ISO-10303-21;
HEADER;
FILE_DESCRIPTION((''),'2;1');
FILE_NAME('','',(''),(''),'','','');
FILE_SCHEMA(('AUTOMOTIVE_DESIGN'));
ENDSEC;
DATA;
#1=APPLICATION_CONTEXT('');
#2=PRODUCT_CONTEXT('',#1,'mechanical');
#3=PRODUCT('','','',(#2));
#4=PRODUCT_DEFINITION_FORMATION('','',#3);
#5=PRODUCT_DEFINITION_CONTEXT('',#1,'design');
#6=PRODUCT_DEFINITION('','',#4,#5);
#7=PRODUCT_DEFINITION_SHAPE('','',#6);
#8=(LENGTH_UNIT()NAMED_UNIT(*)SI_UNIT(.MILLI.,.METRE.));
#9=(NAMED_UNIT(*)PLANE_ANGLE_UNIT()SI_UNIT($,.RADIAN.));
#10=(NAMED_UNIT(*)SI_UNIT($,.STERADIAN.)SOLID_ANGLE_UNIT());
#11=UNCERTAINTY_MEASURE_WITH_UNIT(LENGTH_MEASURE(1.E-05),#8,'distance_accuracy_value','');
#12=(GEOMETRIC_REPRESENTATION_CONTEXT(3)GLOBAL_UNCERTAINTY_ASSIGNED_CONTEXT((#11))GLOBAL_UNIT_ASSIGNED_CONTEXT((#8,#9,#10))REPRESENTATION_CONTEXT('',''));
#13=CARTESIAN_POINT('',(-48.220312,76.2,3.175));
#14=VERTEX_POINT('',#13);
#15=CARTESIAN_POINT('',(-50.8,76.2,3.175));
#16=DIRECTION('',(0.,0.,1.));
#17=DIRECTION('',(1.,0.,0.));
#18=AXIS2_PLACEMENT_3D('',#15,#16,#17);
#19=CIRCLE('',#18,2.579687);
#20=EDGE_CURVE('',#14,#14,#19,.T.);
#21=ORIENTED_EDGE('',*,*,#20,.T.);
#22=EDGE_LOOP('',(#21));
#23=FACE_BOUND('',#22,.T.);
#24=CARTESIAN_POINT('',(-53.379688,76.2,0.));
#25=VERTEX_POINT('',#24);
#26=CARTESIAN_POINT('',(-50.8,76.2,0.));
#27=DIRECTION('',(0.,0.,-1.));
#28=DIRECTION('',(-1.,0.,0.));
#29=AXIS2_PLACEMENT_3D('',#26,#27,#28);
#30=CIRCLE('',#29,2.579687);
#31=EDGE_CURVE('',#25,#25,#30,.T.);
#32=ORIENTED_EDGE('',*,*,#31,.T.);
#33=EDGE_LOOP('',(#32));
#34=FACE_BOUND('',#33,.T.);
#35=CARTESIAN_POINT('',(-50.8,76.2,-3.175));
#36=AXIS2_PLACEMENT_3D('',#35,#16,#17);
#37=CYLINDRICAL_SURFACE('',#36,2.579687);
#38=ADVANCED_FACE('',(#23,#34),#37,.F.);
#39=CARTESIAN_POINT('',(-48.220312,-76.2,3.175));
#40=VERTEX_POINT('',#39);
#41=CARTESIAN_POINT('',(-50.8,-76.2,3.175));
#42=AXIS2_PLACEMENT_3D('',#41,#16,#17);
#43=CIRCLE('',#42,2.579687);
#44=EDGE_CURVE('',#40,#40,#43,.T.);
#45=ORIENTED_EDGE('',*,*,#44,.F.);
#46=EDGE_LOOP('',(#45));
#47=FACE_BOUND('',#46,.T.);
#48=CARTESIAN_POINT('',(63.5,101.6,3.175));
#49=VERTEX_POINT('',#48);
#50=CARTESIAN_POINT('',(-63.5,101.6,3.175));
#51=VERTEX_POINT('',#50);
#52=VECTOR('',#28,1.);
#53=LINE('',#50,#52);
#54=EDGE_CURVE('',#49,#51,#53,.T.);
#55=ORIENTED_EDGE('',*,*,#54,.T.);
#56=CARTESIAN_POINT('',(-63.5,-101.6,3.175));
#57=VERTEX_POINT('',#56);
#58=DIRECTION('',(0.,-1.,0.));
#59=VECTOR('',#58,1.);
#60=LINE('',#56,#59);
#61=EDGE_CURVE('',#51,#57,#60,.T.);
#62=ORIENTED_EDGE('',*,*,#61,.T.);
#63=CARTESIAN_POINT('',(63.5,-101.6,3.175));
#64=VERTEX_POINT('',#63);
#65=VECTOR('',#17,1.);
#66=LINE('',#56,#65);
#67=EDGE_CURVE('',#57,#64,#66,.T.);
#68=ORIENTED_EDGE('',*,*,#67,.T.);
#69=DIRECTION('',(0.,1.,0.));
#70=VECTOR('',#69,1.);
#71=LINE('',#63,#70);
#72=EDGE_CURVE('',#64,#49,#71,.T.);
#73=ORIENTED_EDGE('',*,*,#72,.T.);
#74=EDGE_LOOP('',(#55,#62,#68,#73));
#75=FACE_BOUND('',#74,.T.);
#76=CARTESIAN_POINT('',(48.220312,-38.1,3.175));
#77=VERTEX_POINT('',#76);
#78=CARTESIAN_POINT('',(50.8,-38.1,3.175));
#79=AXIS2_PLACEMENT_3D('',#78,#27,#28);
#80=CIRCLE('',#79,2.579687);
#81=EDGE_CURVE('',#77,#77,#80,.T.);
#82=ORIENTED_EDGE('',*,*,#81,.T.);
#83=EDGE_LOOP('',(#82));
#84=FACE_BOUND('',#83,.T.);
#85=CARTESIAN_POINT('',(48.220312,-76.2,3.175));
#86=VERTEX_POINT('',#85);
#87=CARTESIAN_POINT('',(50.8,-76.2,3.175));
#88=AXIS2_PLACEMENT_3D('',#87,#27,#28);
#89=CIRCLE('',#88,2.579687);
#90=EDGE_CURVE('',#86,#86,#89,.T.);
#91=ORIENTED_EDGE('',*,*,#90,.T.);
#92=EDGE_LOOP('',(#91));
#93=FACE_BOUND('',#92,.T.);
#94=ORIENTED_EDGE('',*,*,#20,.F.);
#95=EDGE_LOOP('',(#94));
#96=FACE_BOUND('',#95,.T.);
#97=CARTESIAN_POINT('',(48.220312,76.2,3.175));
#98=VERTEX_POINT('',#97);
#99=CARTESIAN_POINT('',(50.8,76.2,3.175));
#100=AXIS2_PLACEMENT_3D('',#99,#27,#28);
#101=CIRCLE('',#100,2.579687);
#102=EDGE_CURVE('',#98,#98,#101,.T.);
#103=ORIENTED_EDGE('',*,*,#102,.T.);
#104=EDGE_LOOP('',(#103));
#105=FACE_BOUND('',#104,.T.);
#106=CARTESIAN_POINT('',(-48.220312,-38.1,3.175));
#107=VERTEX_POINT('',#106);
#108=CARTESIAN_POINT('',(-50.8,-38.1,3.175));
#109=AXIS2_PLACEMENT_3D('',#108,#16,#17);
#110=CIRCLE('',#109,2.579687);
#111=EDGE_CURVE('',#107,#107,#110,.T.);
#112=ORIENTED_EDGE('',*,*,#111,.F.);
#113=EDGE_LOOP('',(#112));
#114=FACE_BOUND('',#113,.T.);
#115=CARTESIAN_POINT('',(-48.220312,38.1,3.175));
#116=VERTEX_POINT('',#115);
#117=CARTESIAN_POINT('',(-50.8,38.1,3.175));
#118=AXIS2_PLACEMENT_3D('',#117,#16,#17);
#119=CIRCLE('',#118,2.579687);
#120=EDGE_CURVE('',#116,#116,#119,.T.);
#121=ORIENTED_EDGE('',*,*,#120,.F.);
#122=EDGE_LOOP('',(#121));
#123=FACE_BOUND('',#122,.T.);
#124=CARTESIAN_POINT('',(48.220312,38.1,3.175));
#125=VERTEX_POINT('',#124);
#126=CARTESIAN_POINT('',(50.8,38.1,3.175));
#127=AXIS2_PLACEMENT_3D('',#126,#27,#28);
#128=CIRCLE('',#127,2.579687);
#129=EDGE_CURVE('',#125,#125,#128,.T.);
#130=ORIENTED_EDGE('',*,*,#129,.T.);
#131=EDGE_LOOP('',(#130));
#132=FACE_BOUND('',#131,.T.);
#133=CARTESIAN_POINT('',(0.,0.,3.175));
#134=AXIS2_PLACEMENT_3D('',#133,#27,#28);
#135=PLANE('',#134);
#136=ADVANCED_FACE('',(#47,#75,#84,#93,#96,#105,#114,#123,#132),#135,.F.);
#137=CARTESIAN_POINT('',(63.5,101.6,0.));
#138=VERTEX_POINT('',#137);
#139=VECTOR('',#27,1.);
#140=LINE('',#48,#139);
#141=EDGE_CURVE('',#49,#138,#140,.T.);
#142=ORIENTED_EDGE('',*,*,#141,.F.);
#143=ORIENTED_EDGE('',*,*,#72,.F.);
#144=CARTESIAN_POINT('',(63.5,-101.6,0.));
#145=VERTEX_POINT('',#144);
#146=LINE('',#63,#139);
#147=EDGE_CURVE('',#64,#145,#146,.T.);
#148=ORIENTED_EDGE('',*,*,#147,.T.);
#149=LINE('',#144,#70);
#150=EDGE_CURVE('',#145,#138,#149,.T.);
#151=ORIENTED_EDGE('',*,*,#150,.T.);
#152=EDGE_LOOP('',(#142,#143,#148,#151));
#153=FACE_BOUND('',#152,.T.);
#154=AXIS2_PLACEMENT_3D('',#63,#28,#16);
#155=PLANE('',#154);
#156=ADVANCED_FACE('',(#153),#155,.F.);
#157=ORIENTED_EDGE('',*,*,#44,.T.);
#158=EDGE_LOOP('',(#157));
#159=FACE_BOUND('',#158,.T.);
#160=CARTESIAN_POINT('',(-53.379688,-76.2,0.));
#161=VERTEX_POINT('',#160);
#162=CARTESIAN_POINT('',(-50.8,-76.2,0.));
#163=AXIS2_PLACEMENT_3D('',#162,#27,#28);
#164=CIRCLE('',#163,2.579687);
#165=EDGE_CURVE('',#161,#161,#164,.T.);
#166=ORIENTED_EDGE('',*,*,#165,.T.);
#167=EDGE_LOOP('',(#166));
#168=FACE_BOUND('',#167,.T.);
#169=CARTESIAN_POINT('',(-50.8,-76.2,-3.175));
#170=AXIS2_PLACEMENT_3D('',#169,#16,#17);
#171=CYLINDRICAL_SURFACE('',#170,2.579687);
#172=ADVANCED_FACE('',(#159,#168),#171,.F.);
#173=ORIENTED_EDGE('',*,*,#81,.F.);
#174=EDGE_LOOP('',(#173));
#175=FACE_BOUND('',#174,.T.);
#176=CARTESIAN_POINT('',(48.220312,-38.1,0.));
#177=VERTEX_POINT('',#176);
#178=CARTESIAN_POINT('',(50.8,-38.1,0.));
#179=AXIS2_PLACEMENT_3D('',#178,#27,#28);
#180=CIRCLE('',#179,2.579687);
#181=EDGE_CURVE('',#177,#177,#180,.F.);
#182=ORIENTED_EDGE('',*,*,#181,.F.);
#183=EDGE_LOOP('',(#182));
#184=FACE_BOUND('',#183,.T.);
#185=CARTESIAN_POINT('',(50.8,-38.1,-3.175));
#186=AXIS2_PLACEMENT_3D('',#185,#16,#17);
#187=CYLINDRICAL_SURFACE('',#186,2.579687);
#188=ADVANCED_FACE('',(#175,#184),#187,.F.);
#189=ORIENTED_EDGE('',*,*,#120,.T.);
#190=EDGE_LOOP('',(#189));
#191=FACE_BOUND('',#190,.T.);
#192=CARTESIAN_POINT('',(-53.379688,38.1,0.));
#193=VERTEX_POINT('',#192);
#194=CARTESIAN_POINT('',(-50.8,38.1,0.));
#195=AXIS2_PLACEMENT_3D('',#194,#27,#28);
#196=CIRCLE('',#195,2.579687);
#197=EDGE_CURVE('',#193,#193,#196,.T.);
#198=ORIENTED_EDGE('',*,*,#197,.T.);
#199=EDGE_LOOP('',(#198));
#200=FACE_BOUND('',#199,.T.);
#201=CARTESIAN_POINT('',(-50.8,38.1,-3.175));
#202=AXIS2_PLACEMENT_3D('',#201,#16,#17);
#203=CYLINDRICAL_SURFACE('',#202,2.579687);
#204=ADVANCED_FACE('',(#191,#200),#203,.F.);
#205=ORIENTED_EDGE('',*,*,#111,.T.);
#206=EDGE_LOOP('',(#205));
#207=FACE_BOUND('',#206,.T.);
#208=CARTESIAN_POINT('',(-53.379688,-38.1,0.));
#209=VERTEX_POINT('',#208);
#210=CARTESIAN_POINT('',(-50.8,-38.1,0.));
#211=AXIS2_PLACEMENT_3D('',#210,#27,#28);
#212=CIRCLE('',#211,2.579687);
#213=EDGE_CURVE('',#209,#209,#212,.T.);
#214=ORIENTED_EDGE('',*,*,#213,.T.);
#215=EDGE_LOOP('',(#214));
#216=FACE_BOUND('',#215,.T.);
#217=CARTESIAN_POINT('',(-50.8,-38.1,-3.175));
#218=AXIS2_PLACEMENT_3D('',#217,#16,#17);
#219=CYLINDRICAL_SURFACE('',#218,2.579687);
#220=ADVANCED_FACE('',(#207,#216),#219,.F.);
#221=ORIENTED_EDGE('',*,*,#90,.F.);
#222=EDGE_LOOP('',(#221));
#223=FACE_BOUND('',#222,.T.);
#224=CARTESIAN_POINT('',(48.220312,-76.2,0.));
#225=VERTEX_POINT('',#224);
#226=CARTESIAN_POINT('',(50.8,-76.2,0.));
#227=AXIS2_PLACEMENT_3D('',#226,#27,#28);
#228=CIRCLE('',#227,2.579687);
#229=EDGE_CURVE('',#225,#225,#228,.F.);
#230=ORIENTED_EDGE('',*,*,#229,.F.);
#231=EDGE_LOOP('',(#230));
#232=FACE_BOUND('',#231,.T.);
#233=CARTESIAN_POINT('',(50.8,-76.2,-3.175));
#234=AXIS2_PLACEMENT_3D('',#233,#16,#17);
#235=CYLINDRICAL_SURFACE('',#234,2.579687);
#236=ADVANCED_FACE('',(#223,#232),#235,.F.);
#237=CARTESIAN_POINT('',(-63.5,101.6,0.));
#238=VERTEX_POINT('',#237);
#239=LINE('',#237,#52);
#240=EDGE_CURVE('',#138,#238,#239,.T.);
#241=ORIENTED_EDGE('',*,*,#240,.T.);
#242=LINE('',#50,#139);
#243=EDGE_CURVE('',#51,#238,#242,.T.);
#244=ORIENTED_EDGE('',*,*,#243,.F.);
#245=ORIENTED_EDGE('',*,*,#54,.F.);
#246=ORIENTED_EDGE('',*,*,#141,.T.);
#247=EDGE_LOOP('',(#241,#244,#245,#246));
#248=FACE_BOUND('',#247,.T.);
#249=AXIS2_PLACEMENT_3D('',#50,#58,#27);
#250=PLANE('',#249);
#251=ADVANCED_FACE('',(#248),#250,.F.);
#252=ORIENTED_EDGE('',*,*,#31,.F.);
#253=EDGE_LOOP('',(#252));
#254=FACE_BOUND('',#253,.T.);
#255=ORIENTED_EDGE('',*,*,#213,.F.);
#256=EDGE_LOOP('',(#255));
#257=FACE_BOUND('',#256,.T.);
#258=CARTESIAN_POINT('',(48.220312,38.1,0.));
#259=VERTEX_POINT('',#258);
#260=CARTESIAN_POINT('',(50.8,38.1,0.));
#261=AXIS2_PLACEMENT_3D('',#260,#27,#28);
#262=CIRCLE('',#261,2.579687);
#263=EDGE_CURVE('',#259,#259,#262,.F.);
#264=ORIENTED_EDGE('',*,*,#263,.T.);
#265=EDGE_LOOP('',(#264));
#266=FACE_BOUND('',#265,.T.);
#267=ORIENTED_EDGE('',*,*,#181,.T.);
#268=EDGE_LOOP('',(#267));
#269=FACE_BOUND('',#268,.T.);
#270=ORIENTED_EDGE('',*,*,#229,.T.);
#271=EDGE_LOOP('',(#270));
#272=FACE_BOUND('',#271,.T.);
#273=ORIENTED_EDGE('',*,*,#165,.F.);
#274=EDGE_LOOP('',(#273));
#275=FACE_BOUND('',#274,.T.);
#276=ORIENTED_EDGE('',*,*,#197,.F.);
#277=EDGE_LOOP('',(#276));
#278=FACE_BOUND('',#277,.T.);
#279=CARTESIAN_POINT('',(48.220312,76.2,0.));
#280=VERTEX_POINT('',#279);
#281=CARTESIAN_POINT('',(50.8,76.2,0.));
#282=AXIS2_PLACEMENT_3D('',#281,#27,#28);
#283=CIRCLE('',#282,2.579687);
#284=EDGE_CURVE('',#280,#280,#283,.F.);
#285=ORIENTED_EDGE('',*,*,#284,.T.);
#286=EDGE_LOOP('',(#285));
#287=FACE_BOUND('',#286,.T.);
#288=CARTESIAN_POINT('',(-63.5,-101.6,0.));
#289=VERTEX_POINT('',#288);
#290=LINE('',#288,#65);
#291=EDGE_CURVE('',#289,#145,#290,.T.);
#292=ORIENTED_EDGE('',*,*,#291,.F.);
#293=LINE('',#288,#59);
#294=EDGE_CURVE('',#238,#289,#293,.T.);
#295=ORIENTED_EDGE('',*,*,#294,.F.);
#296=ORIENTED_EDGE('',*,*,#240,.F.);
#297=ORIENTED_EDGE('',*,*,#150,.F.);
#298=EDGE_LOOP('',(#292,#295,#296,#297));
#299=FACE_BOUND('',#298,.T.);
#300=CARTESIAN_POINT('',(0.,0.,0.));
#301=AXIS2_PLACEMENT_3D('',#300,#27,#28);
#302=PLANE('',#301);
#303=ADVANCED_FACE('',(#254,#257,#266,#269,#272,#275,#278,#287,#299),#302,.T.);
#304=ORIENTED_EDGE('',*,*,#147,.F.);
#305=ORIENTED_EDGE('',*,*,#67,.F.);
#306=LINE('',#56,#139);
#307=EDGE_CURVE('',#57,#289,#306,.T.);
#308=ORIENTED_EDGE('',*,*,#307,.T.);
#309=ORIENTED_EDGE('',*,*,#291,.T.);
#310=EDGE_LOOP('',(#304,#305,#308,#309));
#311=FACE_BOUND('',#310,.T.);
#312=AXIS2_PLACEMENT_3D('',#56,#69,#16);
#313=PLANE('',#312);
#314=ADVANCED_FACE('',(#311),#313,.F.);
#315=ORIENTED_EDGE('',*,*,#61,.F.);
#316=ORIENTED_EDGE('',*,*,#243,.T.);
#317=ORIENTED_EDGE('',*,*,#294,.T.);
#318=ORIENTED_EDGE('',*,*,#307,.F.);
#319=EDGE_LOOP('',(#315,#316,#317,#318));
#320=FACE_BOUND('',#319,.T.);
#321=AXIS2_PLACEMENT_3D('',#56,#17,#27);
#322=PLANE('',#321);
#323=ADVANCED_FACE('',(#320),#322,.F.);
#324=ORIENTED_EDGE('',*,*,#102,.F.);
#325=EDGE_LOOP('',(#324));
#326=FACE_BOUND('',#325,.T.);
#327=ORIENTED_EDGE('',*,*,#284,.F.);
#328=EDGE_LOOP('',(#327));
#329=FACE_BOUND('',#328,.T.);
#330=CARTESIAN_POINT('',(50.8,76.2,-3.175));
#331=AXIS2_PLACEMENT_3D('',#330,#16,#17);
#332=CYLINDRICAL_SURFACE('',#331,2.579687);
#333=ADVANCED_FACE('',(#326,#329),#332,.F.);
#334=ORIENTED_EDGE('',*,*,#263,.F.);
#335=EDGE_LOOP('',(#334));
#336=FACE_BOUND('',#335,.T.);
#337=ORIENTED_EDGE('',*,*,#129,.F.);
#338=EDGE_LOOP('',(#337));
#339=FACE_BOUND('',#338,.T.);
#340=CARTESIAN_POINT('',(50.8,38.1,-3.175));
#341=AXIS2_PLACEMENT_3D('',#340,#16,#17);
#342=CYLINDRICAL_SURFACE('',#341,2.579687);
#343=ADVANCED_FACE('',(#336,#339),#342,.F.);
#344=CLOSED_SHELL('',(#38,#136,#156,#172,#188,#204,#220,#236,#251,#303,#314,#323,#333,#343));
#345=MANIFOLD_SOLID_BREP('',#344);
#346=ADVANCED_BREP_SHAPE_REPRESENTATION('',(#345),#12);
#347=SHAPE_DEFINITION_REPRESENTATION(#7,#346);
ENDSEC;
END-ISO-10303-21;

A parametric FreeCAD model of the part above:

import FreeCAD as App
import Part
import Sketcher
Q = App.Units.Quantity


def add_polygon(sketch, points):
    """Adds a closed chain of lines whose ends are joined by coincident constraints."""
    first, n = sketch.GeometryCount, len(points)
    for a, b in zip(points, points[1:] + points[:1]):
        sketch.addGeometry(Part.LineSegment(App.Vector(*a, 0), App.Vector(*b, 0)), False)
    for i in range(n):
        sketch.addConstraint(Sketcher.Constraint("Coincident", first + i, 2, first + (i + 1) % n, 1))

doc = App.newDocument("Part")
body = doc.addObject("PartDesign::Body", "Body")

# Sketch on XY plane
sketch1 = body.newObject("Sketcher::SketchObject", "Sketch")
sketch1.AttachmentSupport = (doc.getObject("XY_Plane"), [""])
sketch1.MapMode = "FlatFace"
add_polygon(sketch1, [(-63.5, 101.6), (-63.5, -101.6), (63.5, -101.6), (63.5, 101.6)])  # lines 0-3
sketch1.addConstraint([
    Sketcher.Constraint("Vertical", 0),
    Sketcher.Constraint("Horizontal", 1),
    Sketcher.Constraint("Vertical", 2),
    Sketcher.Constraint("Horizontal", 3),
    Sketcher.Constraint("Symmetric", 0, 2, 2, 2, -1, 1),
    Sketcher.Constraint("DistanceX", 1, 1, 1, 2, Q("5 in")),
    Sketcher.Constraint("DistanceY", 0, 2, 0, 1, Q("8 in")),
])
pad1 = body.newObject("PartDesign::Pad", "Pad")
pad1.Profile = sketch1
pad1.Length = Q("0.125 in")

# Sketch on XY plane
sketch2 = body.newObject("Sketcher::SketchObject", "Sketch001")
sketch2.AttachmentSupport = (doc.getObject("XY_Plane"), [""])
sketch2.MapMode = "FlatFace"
sketch2.AttachmentOffset = App.Placement(App.Vector(0, 0, 0.125 * 25.4), App.Rotation())
sketch2.addGeometry([
    Part.Circle(App.Vector(-50.8, 76.2, 0), App.Vector(0, 0, 1), 2.579687),
    Part.Circle(App.Vector(-50.8, 38.1, 0), App.Vector(0, 0, 1), 2.579687),
    Part.Circle(App.Vector(-50.8, -38.1, 0), App.Vector(0, 0, 1), 2.579687),
    Part.Circle(App.Vector(-50.8, -76.2, 0), App.Vector(0, 0, 1), 2.579687),
], False)
sketch2.addConstraint([
    Sketcher.Constraint("Equal", 0, 1),
    Sketcher.Constraint("Equal", 1, 2),
    Sketcher.Constraint("Equal", 2, 3),
    Sketcher.Constraint("Symmetric", 1, 3, 2, 3, -1),
    Sketcher.Constraint("Symmetric", 0, 3, 3, 3, -1),
    Sketcher.Constraint("Vertical", 0, 3, 1, 3),
    Sketcher.Constraint("Diameter", 0, Q("0.203125 in")),
    Sketcher.Constraint("DistanceX", 0, 3, -1, 1, Q("2 in")),
    Sketcher.Constraint("DistanceY", -1, 1, 0, 3, Q("3 in")),
    Sketcher.Constraint("DistanceY", 2, 3, 1, 3, Q("3 in")),
])
pocket1 = body.newObject("PartDesign::Pocket", "Pocket")
pocket1.Profile = sketch2
pocket1.Length = Q("0.25 in")
doc.recompute()

mirrored = body.newObject("PartDesign::Mirrored", "Mirrored")
mirrored.Originals = [pocket1]
mirrored.MirrorPlane = (doc.getObject("YZ_Plane"), [""])
body.Tip = mirrored

doc.recompute()
